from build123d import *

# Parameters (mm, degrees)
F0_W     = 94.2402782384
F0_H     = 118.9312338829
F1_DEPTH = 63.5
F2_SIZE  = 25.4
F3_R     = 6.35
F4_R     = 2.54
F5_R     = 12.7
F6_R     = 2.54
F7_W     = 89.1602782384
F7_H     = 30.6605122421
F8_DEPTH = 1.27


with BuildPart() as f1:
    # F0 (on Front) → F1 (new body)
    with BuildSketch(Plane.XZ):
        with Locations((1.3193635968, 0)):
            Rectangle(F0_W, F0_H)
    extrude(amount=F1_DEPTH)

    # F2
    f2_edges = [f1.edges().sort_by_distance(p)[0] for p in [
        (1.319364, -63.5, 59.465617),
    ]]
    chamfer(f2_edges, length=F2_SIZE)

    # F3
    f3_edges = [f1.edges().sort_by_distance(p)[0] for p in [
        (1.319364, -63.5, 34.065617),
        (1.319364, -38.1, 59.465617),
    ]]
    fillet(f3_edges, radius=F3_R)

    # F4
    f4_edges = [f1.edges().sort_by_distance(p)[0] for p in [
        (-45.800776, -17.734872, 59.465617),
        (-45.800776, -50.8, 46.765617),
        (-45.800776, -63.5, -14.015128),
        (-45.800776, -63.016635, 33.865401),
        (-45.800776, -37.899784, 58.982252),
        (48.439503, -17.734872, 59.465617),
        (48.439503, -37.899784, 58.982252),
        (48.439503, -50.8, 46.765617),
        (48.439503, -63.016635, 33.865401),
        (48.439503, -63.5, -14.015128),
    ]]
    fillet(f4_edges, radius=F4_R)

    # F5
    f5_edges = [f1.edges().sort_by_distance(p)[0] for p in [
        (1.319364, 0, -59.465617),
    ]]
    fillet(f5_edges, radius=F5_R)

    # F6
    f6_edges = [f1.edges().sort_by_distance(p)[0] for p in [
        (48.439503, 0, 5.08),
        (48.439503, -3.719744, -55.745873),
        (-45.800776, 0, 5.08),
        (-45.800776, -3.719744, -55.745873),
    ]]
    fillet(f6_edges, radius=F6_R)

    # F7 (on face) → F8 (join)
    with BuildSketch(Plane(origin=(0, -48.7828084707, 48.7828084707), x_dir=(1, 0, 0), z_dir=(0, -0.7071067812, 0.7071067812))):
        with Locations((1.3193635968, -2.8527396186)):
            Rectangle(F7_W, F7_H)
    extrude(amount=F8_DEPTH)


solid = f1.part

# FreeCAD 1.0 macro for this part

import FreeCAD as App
import Part
import Sketcher
from FreeCAD import Vector
Q = App.Units.Quantity


def edges_at(feature, points):
    """Names of the edges that pass closest to the given points."""
    edges = feature.Shape.Edges
    near = lambda p: min(range(len(edges)), key=lambda i: edges[i].distToShape(Part.Vertex(*p))[0])
    return sorted({f"Edge{near(p) + 1}" for p in points})


def add_polygon(sketch, points):
    """Adds a closed chain of lines whose ends are joined by coincident constraints."""
    first, n = sketch.GeometryCount, len(points)
    for a, b in zip(points, points[1:] + points[:1]):
        sketch.addGeometry(Part.LineSegment(App.Vector(*a, 0), App.Vector(*b, 0)), False)
    for i in range(n):
        sketch.addConstraint(Sketcher.Constraint("Coincident", first + i, 2, first + (i + 1) % n, 1))

doc = App.newDocument("Part")
body = doc.addObject("PartDesign::Body", "Body")

# Sketch on XZ plane
sketch1 = body.newObject("Sketcher::SketchObject", "Sketch")
sketch1.AttachmentSupport = (doc.getObject("XZ_Plane"), [""])
sketch1.MapMode = "FlatFace"
add_polygon(sketch1, [(-46, 59), (-46, -59), (48, -59), (48, 59)])  # lines 0-3
sketch1.addConstraint([
    Sketcher.Constraint("Vertical", 0),
    Sketcher.Constraint("Horizontal", 1),
    Sketcher.Constraint("Vertical", 2),
    Sketcher.Constraint("Horizontal", 3),
    Sketcher.Constraint("DistanceX", 1, 1, 1, 2, Q("94.240278 mm")),
    Sketcher.Constraint("DistanceY", 0, 2, 0, 1, Q("118.931234 mm")),
    Sketcher.Constraint("DistanceX", 0, 2, -1, 1, Q("45.800776 mm")),
    Sketcher.Constraint("DistanceY", 0, 2, -1, 1, Q("59.465617 mm")),
])
pad1 = body.newObject("PartDesign::Pad", "Pad")
pad1.Profile = sketch1
pad1.Length = Q("2.5 in")
doc.recompute()

chamfer = body.newObject("PartDesign::Chamfer", "Chamfer")
chamfer.Base = (pad1, edges_at(pad1, [(1.319, -63.5, 59.466)]))
chamfer.Size = Q("1 in")
doc.recompute()

fillet = body.newObject("PartDesign::Fillet", "Fillet")
fillet.Base = (chamfer, edges_at(chamfer, [(1.319, -63.5, 34.066), (1.319, -38.1, 59.466)]))
fillet.Radius = Q("0.25 in")
doc.recompute()

fillet2 = body.newObject("PartDesign::Fillet", "Fillet001")
fillet2.Base = (fillet, edges_at(fillet, [
    (-45.801, -17.735, 59.466),
    (-45.801, -50.8, 46.766),
    (-45.801, -63.5, -14.015),
    (-45.801, -63.017, 33.865),
    (-45.801, -37.9, 58.982),
    (48.44, -17.735, 59.466),
    (48.44, -37.9, 58.982),
    (48.44, -50.8, 46.766),
    (48.44, -63.017, 33.865),
    (48.44, -63.5, -14.015),
]))
fillet2.Radius = Q("0.1 in")
doc.recompute()

fillet3 = body.newObject("PartDesign::Fillet", "Fillet002")
fillet3.Base = (fillet2, edges_at(fillet2, [(1.319, 0, -59.466)]))
fillet3.Radius = Q("0.5 in")
doc.recompute()

fillet4 = body.newObject("PartDesign::Fillet", "Fillet003")
fillet4.Base = (fillet3, edges_at(fillet3, [
    (48.44, 0, 5.08),
    (48.44, -3.72, -55.746),
    (-45.801, 0, 5.08),
    (-45.801, -3.72, -55.746),
]))
fillet4.Radius = Q("0.1 in")

# Sketch on an angled plane
sketch2 = body.newObject("Sketcher::SketchObject", "Sketch001")
sketch2.Placement = App.Placement(Vector(0, -48.782808, 48.782808), App.Rotation(Vector(1, 0, 0), Vector(0, 0.707106781, 0.707106781), Vector(0, -0.707106781, 0.707106781), "ZXY"))
add_polygon(sketch2, [(-43, 12), (-43, -18), (46, -18), (46, 12)])  # lines 0-3
sketch2.addConstraint([
    Sketcher.Constraint("Vertical", 0),
    Sketcher.Constraint("Horizontal", 1),
    Sketcher.Constraint("Vertical", 2),
    Sketcher.Constraint("Horizontal", 3),
    Sketcher.Constraint("DistanceX", 1, 1, 1, 2, Q("89.160278 mm")),
    Sketcher.Constraint("DistanceY", 0, 2, 0, 1, Q("30.660512 mm")),
    Sketcher.Constraint("DistanceX", 0, 2, -1, 1, Q("43.260776 mm")),
    Sketcher.Constraint("DistanceY", 0, 2, -1, 1, Q("18.182996 mm")),
])
pad2 = body.newObject("PartDesign::Pad", "Pad001")
pad2.Profile = sketch2
pad2.Length = Q("0.05 in")

doc.recompute()
